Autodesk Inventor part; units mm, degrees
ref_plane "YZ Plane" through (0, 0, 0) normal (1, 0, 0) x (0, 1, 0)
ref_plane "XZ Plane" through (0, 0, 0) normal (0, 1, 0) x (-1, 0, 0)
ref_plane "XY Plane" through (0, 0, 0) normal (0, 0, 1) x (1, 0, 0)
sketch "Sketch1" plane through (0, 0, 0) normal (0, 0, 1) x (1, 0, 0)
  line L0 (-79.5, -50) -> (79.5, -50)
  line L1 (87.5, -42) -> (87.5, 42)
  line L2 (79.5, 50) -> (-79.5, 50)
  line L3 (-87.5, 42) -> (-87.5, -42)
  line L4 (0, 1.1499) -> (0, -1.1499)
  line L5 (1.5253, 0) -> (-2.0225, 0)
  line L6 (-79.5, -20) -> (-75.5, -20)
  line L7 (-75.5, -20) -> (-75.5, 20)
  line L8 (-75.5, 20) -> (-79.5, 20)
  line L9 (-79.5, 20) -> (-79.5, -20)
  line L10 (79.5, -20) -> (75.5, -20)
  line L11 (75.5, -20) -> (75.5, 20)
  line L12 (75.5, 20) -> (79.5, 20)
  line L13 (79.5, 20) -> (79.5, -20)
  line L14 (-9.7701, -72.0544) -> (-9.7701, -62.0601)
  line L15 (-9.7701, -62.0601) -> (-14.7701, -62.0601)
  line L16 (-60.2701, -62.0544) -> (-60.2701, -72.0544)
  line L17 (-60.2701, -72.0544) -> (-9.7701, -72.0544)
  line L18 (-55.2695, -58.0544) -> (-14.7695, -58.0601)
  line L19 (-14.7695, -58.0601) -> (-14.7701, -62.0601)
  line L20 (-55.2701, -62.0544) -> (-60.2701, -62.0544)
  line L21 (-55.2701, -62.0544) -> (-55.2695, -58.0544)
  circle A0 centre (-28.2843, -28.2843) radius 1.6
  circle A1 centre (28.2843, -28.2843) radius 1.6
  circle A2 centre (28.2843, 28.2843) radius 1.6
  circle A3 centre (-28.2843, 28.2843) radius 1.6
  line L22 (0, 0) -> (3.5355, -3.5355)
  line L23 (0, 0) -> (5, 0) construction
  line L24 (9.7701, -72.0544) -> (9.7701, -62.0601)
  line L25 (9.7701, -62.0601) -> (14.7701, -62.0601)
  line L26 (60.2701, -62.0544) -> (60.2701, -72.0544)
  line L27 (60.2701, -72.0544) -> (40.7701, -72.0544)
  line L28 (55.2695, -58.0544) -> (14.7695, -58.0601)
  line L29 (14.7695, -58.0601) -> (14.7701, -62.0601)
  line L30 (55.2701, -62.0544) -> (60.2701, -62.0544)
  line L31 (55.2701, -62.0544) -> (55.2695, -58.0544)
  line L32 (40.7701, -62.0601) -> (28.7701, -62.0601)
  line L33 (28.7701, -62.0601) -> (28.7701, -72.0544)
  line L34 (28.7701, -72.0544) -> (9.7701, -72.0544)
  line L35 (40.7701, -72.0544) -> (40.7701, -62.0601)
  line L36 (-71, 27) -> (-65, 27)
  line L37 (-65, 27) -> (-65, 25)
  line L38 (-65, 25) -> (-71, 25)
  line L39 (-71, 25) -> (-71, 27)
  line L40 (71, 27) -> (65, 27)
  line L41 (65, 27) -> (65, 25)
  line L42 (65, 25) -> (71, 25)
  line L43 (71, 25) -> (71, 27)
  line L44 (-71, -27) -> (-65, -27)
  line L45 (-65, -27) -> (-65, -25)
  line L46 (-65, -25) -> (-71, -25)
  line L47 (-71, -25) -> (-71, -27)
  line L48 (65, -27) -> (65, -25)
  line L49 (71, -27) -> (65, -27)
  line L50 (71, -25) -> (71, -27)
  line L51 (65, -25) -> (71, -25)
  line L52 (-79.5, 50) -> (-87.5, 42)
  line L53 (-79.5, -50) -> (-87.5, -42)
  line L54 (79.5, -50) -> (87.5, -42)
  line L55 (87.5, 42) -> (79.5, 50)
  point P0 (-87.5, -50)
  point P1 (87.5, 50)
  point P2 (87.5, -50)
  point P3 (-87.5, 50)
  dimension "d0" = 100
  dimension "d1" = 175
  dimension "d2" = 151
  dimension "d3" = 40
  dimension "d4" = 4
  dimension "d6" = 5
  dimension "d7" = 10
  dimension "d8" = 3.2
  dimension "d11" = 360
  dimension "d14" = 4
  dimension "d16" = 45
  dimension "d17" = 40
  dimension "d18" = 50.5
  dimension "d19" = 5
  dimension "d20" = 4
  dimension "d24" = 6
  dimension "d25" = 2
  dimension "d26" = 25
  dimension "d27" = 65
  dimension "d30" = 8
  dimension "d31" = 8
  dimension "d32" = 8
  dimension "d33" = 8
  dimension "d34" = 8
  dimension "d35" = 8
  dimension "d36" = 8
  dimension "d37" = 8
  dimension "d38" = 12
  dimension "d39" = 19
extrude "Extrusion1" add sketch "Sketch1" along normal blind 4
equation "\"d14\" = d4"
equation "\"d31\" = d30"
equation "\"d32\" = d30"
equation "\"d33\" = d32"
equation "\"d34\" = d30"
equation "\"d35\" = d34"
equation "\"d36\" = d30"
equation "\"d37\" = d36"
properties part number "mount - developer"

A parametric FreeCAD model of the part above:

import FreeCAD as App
import Part
import Sketcher
Q = App.Units.Quantity


def add_polygon(sketch, points):
    """Adds a closed chain of lines whose ends are joined by coincident constraints."""
    first, n = sketch.GeometryCount, len(points)
    for a, b in zip(points, points[1:] + points[:1]):
        sketch.addGeometry(Part.LineSegment(App.Vector(*a, 0), App.Vector(*b, 0)), False)
    for i in range(n):
        sketch.addConstraint(Sketcher.Constraint("Coincident", first + i, 2, first + (i + 1) % n, 1))

doc = App.newDocument("Part")
body = doc.addObject("PartDesign::Body", "Body")
body.AllowCompound = True

# Sketch on XY plane
sketch1 = body.newObject("Sketcher::SketchObject", "Sketch")
sketch1.AttachmentSupport = (doc.getObject("XY_Plane"), [""])
sketch1.MapMode = "FlatFace"
add_polygon(sketch1, [(-87.5, -42), (-79.5, -50), (79.5, -50), (87.5, -42), (87.5, 42), (79.5, 50), (-79.5, 50), (-87.5, 42)])  # lines 0-7
add_polygon(sketch1, [(-65, -27), (-71, -27), (-71, -25), (-65, -25)])  # lines 8-11
sketch1.addGeometry(Part.Circle(App.Vector(-28.2843, -28.2843, 0), App.Vector(0, 0, 1), 1.6), False)  # 12
sketch1.addGeometry(Part.Circle(App.Vector(28.2843, -28.2843, 0), App.Vector(0, 0, 1), 1.6), False)  # 13
add_polygon(sketch1, [(71, -27), (65, -27), (65, -25), (71, -25)])  # lines 14-17
add_polygon(sketch1, [(-75.5, -20), (-79.5, -20), (-79.5, 20), (-75.5, 20)])  # lines 18-21
add_polygon(sketch1, [(-71, 25), (-71, 27), (-65, 27), (-65, 25)])  # lines 22-25
sketch1.addGeometry(Part.Circle(App.Vector(-28.2843, 28.2843, 0), App.Vector(0, 0, 1), 1.6), False)  # 26
add_polygon(sketch1, [(79.5, 20), (79.5, -20), (75.5, -20), (75.5, 20)])  # lines 27-30
sketch1.addGeometry(Part.Circle(App.Vector(28.2843, 28.2843, 0), App.Vector(0, 0, 1), 1.6), False)  # 31
add_polygon(sketch1, [(65, 27), (71, 27), (71, 25), (65, 25)])  # lines 32-35
add_polygon(sketch1, [(-60.2701, -72.0544), (-9.7701, -72.0544), (-9.7701, -62.0601), (-14.7701, -62.0601), (-14.7695, -58.0601), (-55.2695, -58.0544), (-55.2701, -62.0544), (-60.2701, -62.0544)])  # lines 36-43
add_polygon(sketch1, [(9.7701, -62.0601), (9.7701, -72.0544), (28.7701, -72.0544), (28.7701, -62.0601), (40.7701, -62.0601), (40.7701, -72.0544), (60.2701, -72.0544), (60.2701, -62.0544), (55.2701, -62.0544), (55.2695, -58.0544), (14.7695, -58.0601), (14.7701, -62.0601)])  # lines 44-55
sketch1.addConstraint(Sketcher.Constraint("Horizontal", 1))
sketch1.addConstraint(Sketcher.Constraint("Vertical", 3))
sketch1.addConstraint(Sketcher.Constraint("Horizontal", 5))
sketch1.addConstraint(Sketcher.Constraint("Vertical", 7))
sketch1.addConstraint(Sketcher.Constraint("Horizontal", 8))
sketch1.addConstraint(Sketcher.Constraint("Vertical", 9))
sketch1.addConstraint(Sketcher.Constraint("Horizontal", 10))
sketch1.addConstraint(Sketcher.Constraint("Vertical", 11))
sketch1.addConstraint(Sketcher.Constraint("Horizontal", 14))
sketch1.addConstraint(Sketcher.Constraint("Vertical", 15))
sketch1.addConstraint(Sketcher.Constraint("Horizontal", 16))
sketch1.addConstraint(Sketcher.Constraint("Vertical", 17))
sketch1.addConstraint(Sketcher.Constraint("Horizontal", 18))
sketch1.addConstraint(Sketcher.Constraint("Vertical", 19))
sketch1.addConstraint(Sketcher.Constraint("Horizontal", 20))
sketch1.addConstraint(Sketcher.Constraint("Vertical", 21))
sketch1.addConstraint(Sketcher.Constraint("Vertical", 22))
sketch1.addConstraint(Sketcher.Constraint("Horizontal", 23))
sketch1.addConstraint(Sketcher.Constraint("Vertical", 24))
sketch1.addConstraint(Sketcher.Constraint("Horizontal", 25))
sketch1.addConstraint(Sketcher.Constraint("Vertical", 27))
sketch1.addConstraint(Sketcher.Constraint("Horizontal", 28))
sketch1.addConstraint(Sketcher.Constraint("Vertical", 29))
sketch1.addConstraint(Sketcher.Constraint("Horizontal", 30))
sketch1.addConstraint(Sketcher.Constraint("Horizontal", 32))
sketch1.addConstraint(Sketcher.Constraint("Vertical", 33))
sketch1.addConstraint(Sketcher.Constraint("Horizontal", 34))
sketch1.addConstraint(Sketcher.Constraint("Vertical", 35))
sketch1.addConstraint(Sketcher.Constraint("Horizontal", 36))
sketch1.addConstraint(Sketcher.Constraint("Vertical", 37))
sketch1.addConstraint(Sketcher.Constraint("Horizontal", 38))
sketch1.addConstraint(Sketcher.Constraint("Horizontal", 42))
sketch1.addConstraint(Sketcher.Constraint("Vertical", 43))
sketch1.addConstraint(Sketcher.Constraint("Vertical", 44))
sketch1.addConstraint(Sketcher.Constraint("Horizontal", 45))
sketch1.addConstraint(Sketcher.Constraint("Vertical", 46))
sketch1.addConstraint(Sketcher.Constraint("Horizontal", 47))
sketch1.addConstraint(Sketcher.Constraint("Vertical", 48))
sketch1.addConstraint(Sketcher.Constraint("Horizontal", 49))
sketch1.addConstraint(Sketcher.Constraint("Vertical", 50))
sketch1.addConstraint(Sketcher.Constraint("Horizontal", 51))
sketch1.addConstraint(Sketcher.Constraint("Horizontal", 55))
sketch1.addConstraint(Sketcher.Constraint("Diameter", 12, Q("3.2 mm")))
sketch1.addConstraint(Sketcher.Constraint("Diameter", 13, Q("3.2 mm")))
sketch1.addConstraint(Sketcher.Constraint("Diameter", 26, Q("3.2 mm")))
sketch1.addConstraint(Sketcher.Constraint("Diameter", 31, Q("3.2 mm")))
sketch1.addConstraint(Sketcher.Constraint("DistanceX", 8, 2, 8, 1, Q("6 mm")))
sketch1.addConstraint(Sketcher.Constraint("DistanceX", 14, 2, 14, 1, Q("6 mm")))
sketch1.addConstraint(Sketcher.Constraint("DistanceX", 18, 2, 18, 1, Q("4 mm")))
sketch1.addConstraint(Sketcher.Constraint("DistanceX", 23, 1, 23, 2, Q("6 mm")))
sketch1.addConstraint(Sketcher.Constraint("DistanceX", 28, 2, 28, 1, Q("4 mm")))
sketch1.addConstraint(Sketcher.Constraint("DistanceX", 32, 1, 32, 2, Q("6 mm")))
sketch1.addConstraint(Sketcher.Constraint("DistanceX", 38, 2, 38, 1, Q("5 mm")))
sketch1.addConstraint(Sketcher.Constraint("DistanceX", 42, 2, 42, 1, Q("5 mm")))
sketch1.addConstraint(Sketcher.Constraint("DistanceX", 45, 1, 45, 2, Q("19 mm")))
sketch1.addConstraint(Sketcher.Constraint("DistanceX", 47, 1, 47, 2, Q("12 mm")))
sketch1.addConstraint(Sketcher.Constraint("DistanceX", 51, 2, 51, 1, Q("5 mm")))
sketch1.addConstraint(Sketcher.Constraint("DistanceX", 55, 2, 55, 1, Q("5 mm")))
sketch1.addConstraint(Sketcher.Constraint("DistanceY", 9, 1, 9, 2, Q("2 mm")))
sketch1.addConstraint(Sketcher.Constraint("DistanceY", 15, 1, 15, 2, Q("2 mm")))
sketch1.addConstraint(Sketcher.Constraint("DistanceY", 19, 1, 19, 2, Q("40 mm")))
sketch1.addConstraint(Sketcher.Constraint("DistanceY", 22, 1, 22, 2, Q("2 mm")))
sketch1.addConstraint(Sketcher.Constraint("DistanceY", 27, 2, 27, 1, Q("40 mm")))
sketch1.addConstraint(Sketcher.Constraint("DistanceY", 33, 2, 33, 1, Q("2 mm")))
sketch1.addConstraint(Sketcher.Constraint("DistanceY", 43, 2, 43, 1, Q("10 mm")))
sketch1.addConstraint(Sketcher.Constraint("DistanceY", 50, 1, 50, 2, Q("10 mm")))
sketch1.addConstraint(Sketcher.Constraint("Distance", 39, Q("4 mm")))
sketch1.addConstraint(Sketcher.Constraint("Distance", 41, Q("4 mm")))
sketch1.addConstraint(Sketcher.Constraint("Distance", 52, Q("4 mm")))
sketch1.addConstraint(Sketcher.Constraint("Distance", 54, Q("4 mm")))
sketch1.addConstraint(Sketcher.Constraint("DistanceX", 36, 1, 36, 2, Q("50.5 mm")))
sketch1.addConstraint(Sketcher.Constraint("DistanceY", 9, 2, -1, 1, Q("25 mm")))
sketch1.addConstraint(Sketcher.Constraint("DistanceX", 10, 2, -1, 1, Q("65 mm")))
sketch1.addConstraint(Sketcher.Constraint("DistanceX", -1, 1, 14, 2, Q("65 mm")))
sketch1.addConstraint(Sketcher.Constraint("DistanceY", 15, 2, -1, 1, Q("25 mm")))
sketch1.addConstraint(Sketcher.Constraint("DistanceX", 23, 2, -1, 1, Q("65 mm")))
sketch1.addConstraint(Sketcher.Constraint("DistanceY", -1, 1, 24, 2, Q("25 mm")))
sketch1.addConstraint(Sketcher.Constraint("DistanceY", -1, 1, 33, 2, Q("25 mm")))
sketch1.addConstraint(Sketcher.Constraint("DistanceX", -1, 1, 34, 2, Q("65 mm")))
sketch1.addConstraint(Sketcher.Constraint("DistanceX", 1, 2, 2, 2, Q("8 mm")))
sketch1.addConstraint(Sketcher.Constraint("DistanceY", 1, 2, 2, 2, Q("8 mm")))
sketch1.addConstraint(Sketcher.Constraint("DistanceX", 4, 2, 3, 2, Q("8 mm")))
sketch1.addConstraint(Sketcher.Constraint("DistanceY", 3, 2, 4, 2, Q("8 mm")))
sketch1.addConstraint(Sketcher.Constraint("DistanceY", 1, 2, 4, 2, Q("100 mm")))
sketch1.addConstraint(Sketcher.Constraint("DistanceX", 6, 2, 5, 2, Q("8 mm")))
sketch1.addConstraint(Sketcher.Constraint("DistanceY", 6, 2, 5, 2, Q("8 mm")))
sketch1.addConstraint(Sketcher.Constraint("DistanceX", 6, 2, 0, 2, Q("8 mm")))
sketch1.addConstraint(Sketcher.Constraint("DistanceY", 0, 2, 7, 2, Q("8 mm")))
sketch1.addConstraint(Sketcher.Constraint("DistanceY", 0, 2, 9, 2, Q("25 mm")))
sketch1.addConstraint(Sketcher.Constraint("DistanceY", 9, 2, 18, 2, Q("5 mm")))
sketch1.addConstraint(Sketcher.Constraint("DistanceX", 7, 2, 18, 2, Q("8 mm")))
sketch1.addConstraint(Sketcher.Constraint("DistanceY", 16, 2, 27, 2, Q("5 mm")))
sketch1.addConstraint(Sketcher.Constraint("DistanceX", 27, 2, 2, 2, Q("8 mm")))
sketch1.addConstraint(Sketcher.Constraint("DistanceY", 46, 2, 53, 2, Q("4 mm")))
sketch1.addConstraint(Sketcher.Constraint("DistanceY", 37, 2, 53, 2, Q("4 mm")))
sketch1.addConstraint(Sketcher.Constraint("DistanceX", 1, 1, 1, 2, Q("159 mm")))
sketch1.addConstraint(Sketcher.Constraint("DistanceX", 49, 1, 49, 2, Q("19.5 mm")))
sketch1.addConstraint(Sketcher.Constraint("Distance", 40, Q("40.5 mm")))
sketch1.addConstraint(Sketcher.Constraint("Distance", 53, Q("40.5 mm")))
sketch1.addConstraint(Sketcher.Constraint("DistanceX", 0, 2, -1, 1, Q("79.5 mm")))
sketch1.addConstraint(Sketcher.Constraint("DistanceX", 39, 2, 37, 2, Q("4.9994 mm")))
sketch1.addConstraint(Sketcher.Constraint("DistanceX", 52, 2, 50, 2, Q("5.0006 mm")))
sketch1.addConstraint(Sketcher.Constraint("DistanceX", 36, 2, -1, 1, Q("9.77 mm")))
sketch1.addConstraint(Sketcher.Constraint("DistanceY", 37, 2, -1, 1, Q("62.06 mm")))
sketch1.addConstraint(Sketcher.Constraint("DistanceX", -1, 1, 44, 2, Q("9.77 mm")))
sketch1.addConstraint(Sketcher.Constraint("DistanceY", 36, 2, 12, 3, Q("43.77 mm")))
sketch1.addConstraint(Sketcher.Constraint("DistanceY", 36, 2, 13, 3, Q("43.77 mm")))
sketch1.addConstraint(Sketcher.Constraint("DistanceY", 44, 2, 13, 3, Q("43.77 mm")))
sketch1.addConstraint(Sketcher.Constraint("DistanceY", 37, 1, 37, 2, Q("9.9943 mm")))
sketch1.addConstraint(Sketcher.Constraint("DistanceY", 48, 2, 48, 1, Q("9.9943 mm")))
sketch1.addConstraint(Sketcher.Constraint("DistanceX", 12, 3, -1, 1, Q("28.2843 mm")))
sketch1.addConstraint(Sketcher.Constraint("DistanceX", -1, 1, 13, 3, Q("28.2843 mm")))
sketch1.addConstraint(Sketcher.Constraint("DistanceX", 26, 3, -1, 1, Q("28.2843 mm")))
sketch1.addConstraint(Sketcher.Constraint("DistanceY", -1, 1, 26, 3, Q("28.2843 mm")))
sketch1.addConstraint(Sketcher.Constraint("DistanceX", -1, 1, 31, 3, Q("28.2843 mm")))
sketch1.addConstraint(Sketcher.Constraint("DistanceY", -1, 1, 31, 3, Q("28.2843 mm")))
pad1 = body.newObject("PartDesign::Pad", "Pad")
pad1.Profile = sketch1
pad1.Length = 4

doc.recompute()
